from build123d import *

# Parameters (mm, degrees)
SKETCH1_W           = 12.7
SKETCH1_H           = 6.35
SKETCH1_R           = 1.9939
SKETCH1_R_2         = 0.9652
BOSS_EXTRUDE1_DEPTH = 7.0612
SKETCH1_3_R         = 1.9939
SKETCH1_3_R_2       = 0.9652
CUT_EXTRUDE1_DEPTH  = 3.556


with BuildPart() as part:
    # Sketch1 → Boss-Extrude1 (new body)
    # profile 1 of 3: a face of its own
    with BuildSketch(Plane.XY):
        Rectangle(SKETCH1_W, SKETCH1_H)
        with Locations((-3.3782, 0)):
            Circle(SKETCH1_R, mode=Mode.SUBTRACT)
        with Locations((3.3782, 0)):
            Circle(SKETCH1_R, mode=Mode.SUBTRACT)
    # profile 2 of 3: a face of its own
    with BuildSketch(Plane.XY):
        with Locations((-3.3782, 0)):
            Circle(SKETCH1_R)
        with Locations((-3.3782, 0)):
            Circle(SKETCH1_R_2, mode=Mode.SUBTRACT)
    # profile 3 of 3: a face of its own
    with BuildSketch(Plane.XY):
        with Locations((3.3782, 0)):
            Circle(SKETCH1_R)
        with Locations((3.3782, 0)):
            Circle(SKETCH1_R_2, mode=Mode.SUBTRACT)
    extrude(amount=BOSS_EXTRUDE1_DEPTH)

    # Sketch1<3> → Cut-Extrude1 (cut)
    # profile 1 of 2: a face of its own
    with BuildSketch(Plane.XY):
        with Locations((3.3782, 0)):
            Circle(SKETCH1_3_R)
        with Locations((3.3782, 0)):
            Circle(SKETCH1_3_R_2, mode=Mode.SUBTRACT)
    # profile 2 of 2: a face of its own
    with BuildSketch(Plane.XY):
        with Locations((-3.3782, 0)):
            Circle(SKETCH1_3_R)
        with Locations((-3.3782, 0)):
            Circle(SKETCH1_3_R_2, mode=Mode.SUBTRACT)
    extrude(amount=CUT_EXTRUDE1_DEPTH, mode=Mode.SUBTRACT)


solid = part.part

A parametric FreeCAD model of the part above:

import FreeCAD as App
import Part
import Sketcher

V = App.Vector
Q = App.Units.Quantity


def add_polygon(sketch, points):
    """Adds a closed chain of lines whose ends are joined by coincident constraints."""
    first, n = sketch.GeometryCount, len(points)
    for a, b in zip(points, points[1:] + points[:1]):
        sketch.addGeometry(Part.LineSegment(App.Vector(*a, 0), App.Vector(*b, 0)), False)
    for i in range(n):
        sketch.addConstraint(Sketcher.Constraint("Coincident", first + i, 2, first + (i + 1) % n, 1))

doc = App.newDocument("Part")
body = doc.addObject("PartDesign::Body", "Body")

# Sketch on XY plane
sketch1 = body.newObject("Sketcher::SketchObject", "Sketch")
sketch1.AttachmentSupport = (doc.getObject("XY_Plane"), [""])
sketch1.MapMode = "FlatFace"
add_polygon(sketch1, [(-6.35, 3.175), (-6.35, -3.175), (6.35, -3.175), (6.35, 3.175)])  # lines 0-3
sketch1.addGeometry(Part.Circle(V(-3.3782, 0, 0), V(0, 0, 1), 0.9652), False)  # 4
sketch1.addGeometry(Part.Circle(V(3.3782, 0, 0), V(0, 0, 1), 0.9652), False)  # 5
sketch1.addConstraint([
    Sketcher.Constraint("Vertical", 0),
    Sketcher.Constraint("Horizontal", 1),
    Sketcher.Constraint("Vertical", 2),
    Sketcher.Constraint("Horizontal", 3),
    Sketcher.Constraint("Equal", 4, 5),
    Sketcher.Constraint("Symmetric", 4, 3, 5, 3, -1, 1),
    Sketcher.Constraint("Symmetric", 0, 2, 2, 2, -1, 1),
    Sketcher.Constraint("PointOnObject", 4, 3, -1),
    Sketcher.Constraint("Diameter", 4, Q("0.076 in")),
    Sketcher.Constraint("DistanceX", 1, 1, 1, 2, Q("0.5 in")),
    Sketcher.Constraint("DistanceY", 0, 2, 0, 1, Q("0.25 in")),
    Sketcher.Constraint("DistanceX", 4, 3, -1, 1, Q("0.133 in")),
])
pad1 = body.newObject("PartDesign::Pad", "Pad")
pad1.Profile = sketch1
pad1.Length = Q("0.278 in")

# Sketch on XY plane
sketch2 = body.newObject("Sketcher::SketchObject", "Sketch001")
sketch2.AttachmentSupport = (doc.getObject("XY_Plane"), [""])
sketch2.MapMode = "FlatFace"
sketch2.addGeometry([
    Part.Circle(V(3.3782, 0, 0), V(0, 0, 1), 1.9939),
    Part.Circle(V(3.3782, 0, 0), V(0, 0, 1), 0.9652),
    Part.Circle(V(-3.3782, 0, 0), V(0, 0, 1), 1.9939),
    Part.Circle(V(-3.3782, 0, 0), V(0, 0, 1), 0.9652),
], False)
sketch2.addConstraint([
    Sketcher.Constraint("Coincident", 1, 3, 0, 3),
    Sketcher.Constraint("Coincident", 3, 3, 2, 3),
    Sketcher.Constraint("Equal", 0, 2),
    Sketcher.Constraint("Equal", 1, 3),
    Sketcher.Constraint("Symmetric", 0, 3, 2, 3, -1, 1),
    Sketcher.Constraint("PointOnObject", 0, 3, -1),
    Sketcher.Constraint("Diameter", 0, Q("0.157 in")),
    Sketcher.Constraint("Diameter", 1, Q("0.076 in")),
    Sketcher.Constraint("DistanceX", -1, 1, 0, 3, Q("0.133 in")),
])
pocket1 = body.newObject("PartDesign::Pocket", "Pocket")
pocket1.Profile = sketch2
pocket1.Length = Q("0.14 in")
pocket1.Reversed = True

doc.recompute()
